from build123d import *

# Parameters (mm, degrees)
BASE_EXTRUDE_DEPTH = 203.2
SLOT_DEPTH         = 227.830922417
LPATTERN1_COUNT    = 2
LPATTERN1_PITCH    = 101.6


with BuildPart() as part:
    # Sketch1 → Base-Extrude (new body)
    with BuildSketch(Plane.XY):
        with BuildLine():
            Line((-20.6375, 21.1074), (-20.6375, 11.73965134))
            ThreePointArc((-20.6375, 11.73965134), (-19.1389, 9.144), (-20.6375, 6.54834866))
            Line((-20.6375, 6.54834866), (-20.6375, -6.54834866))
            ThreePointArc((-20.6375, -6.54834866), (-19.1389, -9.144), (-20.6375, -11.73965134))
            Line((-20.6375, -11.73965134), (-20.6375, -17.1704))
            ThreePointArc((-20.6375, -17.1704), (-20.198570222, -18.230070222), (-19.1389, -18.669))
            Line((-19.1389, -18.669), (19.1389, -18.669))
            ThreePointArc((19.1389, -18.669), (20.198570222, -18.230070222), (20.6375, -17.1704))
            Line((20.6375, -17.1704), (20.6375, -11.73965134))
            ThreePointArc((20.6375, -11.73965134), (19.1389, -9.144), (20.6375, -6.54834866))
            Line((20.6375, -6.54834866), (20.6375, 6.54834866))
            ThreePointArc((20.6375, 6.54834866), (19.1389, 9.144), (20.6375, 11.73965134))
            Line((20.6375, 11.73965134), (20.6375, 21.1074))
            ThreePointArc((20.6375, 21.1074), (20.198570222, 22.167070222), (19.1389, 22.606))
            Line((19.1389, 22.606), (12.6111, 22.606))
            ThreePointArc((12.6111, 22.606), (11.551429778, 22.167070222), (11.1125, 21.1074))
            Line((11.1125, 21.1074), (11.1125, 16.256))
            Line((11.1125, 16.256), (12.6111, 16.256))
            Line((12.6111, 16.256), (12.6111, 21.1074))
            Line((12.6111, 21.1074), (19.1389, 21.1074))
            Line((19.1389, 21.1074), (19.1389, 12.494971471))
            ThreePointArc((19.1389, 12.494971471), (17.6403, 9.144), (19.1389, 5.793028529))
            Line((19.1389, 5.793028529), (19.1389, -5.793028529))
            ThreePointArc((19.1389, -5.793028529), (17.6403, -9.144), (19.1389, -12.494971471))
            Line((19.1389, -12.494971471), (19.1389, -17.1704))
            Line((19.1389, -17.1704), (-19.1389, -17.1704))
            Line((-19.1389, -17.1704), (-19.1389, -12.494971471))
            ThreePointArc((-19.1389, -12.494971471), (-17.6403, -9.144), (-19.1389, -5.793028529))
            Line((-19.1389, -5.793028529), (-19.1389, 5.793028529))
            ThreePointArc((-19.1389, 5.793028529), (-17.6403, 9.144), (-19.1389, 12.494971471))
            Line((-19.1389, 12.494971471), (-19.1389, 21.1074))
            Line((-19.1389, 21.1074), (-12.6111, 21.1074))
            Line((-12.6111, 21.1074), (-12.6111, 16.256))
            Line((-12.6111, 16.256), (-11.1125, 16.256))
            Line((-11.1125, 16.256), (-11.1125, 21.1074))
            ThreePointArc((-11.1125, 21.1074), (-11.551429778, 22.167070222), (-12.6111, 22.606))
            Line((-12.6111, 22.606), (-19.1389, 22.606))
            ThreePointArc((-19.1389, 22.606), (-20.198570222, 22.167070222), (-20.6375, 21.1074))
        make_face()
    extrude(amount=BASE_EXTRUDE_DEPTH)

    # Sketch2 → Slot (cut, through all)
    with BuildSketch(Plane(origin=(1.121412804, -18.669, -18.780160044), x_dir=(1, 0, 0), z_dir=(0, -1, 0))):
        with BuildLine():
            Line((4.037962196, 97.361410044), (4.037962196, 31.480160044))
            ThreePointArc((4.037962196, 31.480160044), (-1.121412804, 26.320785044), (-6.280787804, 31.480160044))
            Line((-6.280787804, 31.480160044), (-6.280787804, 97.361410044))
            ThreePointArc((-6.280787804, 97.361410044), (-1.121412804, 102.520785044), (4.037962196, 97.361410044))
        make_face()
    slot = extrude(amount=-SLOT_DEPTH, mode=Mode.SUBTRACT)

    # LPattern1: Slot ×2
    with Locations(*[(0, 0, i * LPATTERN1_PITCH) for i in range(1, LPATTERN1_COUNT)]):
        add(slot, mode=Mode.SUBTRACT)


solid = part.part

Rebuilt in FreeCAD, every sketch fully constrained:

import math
import FreeCAD as App
import Part
import Sketcher
from FreeCAD import Vector
Q = App.Units.Quantity

doc = App.newDocument("Part")
body = doc.addObject("PartDesign::Body", "Body")

# Sketch on XY plane
sketch1 = doc.addObject("Sketcher::SketchObject", "Sketch")
body.addObject(sketch1)
sketch1.AttachmentSupport = (doc.XY_Plane, [""])
sketch1.MapMode = "FlatFace"
sketch1.addGeometry(Part.LineSegment(Vector(-20.6375, 21.1074, 0), Vector(-20.6375, 11.739651, 0)), False)
sketch1.addGeometry(Part.ArcOfCircle(Part.Circle(Vector(-22.1361, 9.144, 0), Vector(0, 0, 1), 2.9972), math.radians(-60), math.radians(60)), False)
sketch1.addGeometry(Part.LineSegment(Vector(-20.6375, 6.548349, 0), Vector(-20.6375, -6.548349, 0)), False)
sketch1.addGeometry(Part.ArcOfCircle(Part.Circle(Vector(-22.1361, -9.144, 0), Vector(0, 0, 1), 2.9972), math.radians(-60), math.radians(60)), False)
sketch1.addGeometry(Part.LineSegment(Vector(-20.6375, -11.739651, 0), Vector(-20.6375, -17.1704, 0)), False)
sketch1.addGeometry(Part.ArcOfCircle(Part.Circle(Vector(-19.1389, -17.1704, 0), Vector(0, 0, 1), 1.4986), math.radians(-180), math.radians(-90)), False)
sketch1.addGeometry(Part.LineSegment(Vector(-19.1389, -18.669, 0), Vector(19.1389, -18.669, 0)), False)
sketch1.addGeometry(Part.ArcOfCircle(Part.Circle(Vector(19.1389, -17.1704, 0), Vector(0, 0, 1), 1.4986), math.radians(-90), math.radians(0)), False)
sketch1.addGeometry(Part.LineSegment(Vector(20.6375, -17.1704, 0), Vector(20.6375, -11.739651, 0)), False)
sketch1.addGeometry(Part.ArcOfCircle(Part.Circle(Vector(22.1361, -9.144, 0), Vector(0, 0, 1), 2.9972), math.radians(120), math.radians(240)), False)
sketch1.addGeometry(Part.LineSegment(Vector(20.6375, -6.548349, 0), Vector(20.6375, 6.548349, 0)), False)
sketch1.addGeometry(Part.ArcOfCircle(Part.Circle(Vector(22.1361, 9.144, 0), Vector(0, 0, 1), 2.9972), math.radians(120), math.radians(240)), False)
sketch1.addGeometry(Part.LineSegment(Vector(20.6375, 11.739651, 0), Vector(20.6375, 21.1074, 0)), False)
sketch1.addGeometry(Part.ArcOfCircle(Part.Circle(Vector(19.1389, 21.1074, 0), Vector(0, 0, 1), 1.4986), math.radians(0), math.radians(90)), False)
sketch1.addGeometry(Part.LineSegment(Vector(19.1389, 22.606, 0), Vector(12.6111, 22.606, 0)), False)
sketch1.addGeometry(Part.ArcOfCircle(Part.Circle(Vector(12.6111, 21.1074, 0), Vector(0, 0, 1), 1.4986), math.radians(90), math.radians(180)), False)
sketch1.addGeometry(Part.LineSegment(Vector(11.1125, 21.1074, 0), Vector(11.1125, 16.256, 0)), False)
sketch1.addGeometry(Part.LineSegment(Vector(11.1125, 16.256, 0), Vector(12.6111, 16.256, 0)), False)
sketch1.addGeometry(Part.LineSegment(Vector(12.6111, 16.256, 0), Vector(12.6111, 21.1074, 0)), False)
sketch1.addGeometry(Part.LineSegment(Vector(12.6111, 21.1074, 0), Vector(19.1389, 21.1074, 0)), False)
sketch1.addGeometry(Part.LineSegment(Vector(19.1389, 21.1074, 0), Vector(19.1389, 12.494971, 0)), False)
sketch1.addGeometry(Part.ArcOfCircle(Part.Circle(Vector(22.1361, 9.144, 0), Vector(0, 0, 1), 4.4958), math.radians(131.810315), math.radians(228.189685)), False)
sketch1.addGeometry(Part.LineSegment(Vector(19.1389, 5.793029, 0), Vector(19.1389, -5.793029, 0)), False)
sketch1.addGeometry(Part.ArcOfCircle(Part.Circle(Vector(22.1361, -9.144, 0), Vector(0, 0, 1), 4.4958), math.radians(131.810315), math.radians(228.189685)), False)
sketch1.addGeometry(Part.LineSegment(Vector(19.1389, -12.494971, 0), Vector(19.1389, -17.1704, 0)), False)
sketch1.addGeometry(Part.LineSegment(Vector(19.1389, -17.1704, 0), Vector(-19.1389, -17.1704, 0)), False)
sketch1.addGeometry(Part.LineSegment(Vector(-19.1389, -17.1704, 0), Vector(-19.1389, -12.494971, 0)), False)
sketch1.addGeometry(Part.ArcOfCircle(Part.Circle(Vector(-22.1361, -9.144, 0), Vector(0, 0, 1), 4.4958), math.radians(-48.189685), math.radians(48.189685)), False)
sketch1.addGeometry(Part.LineSegment(Vector(-19.1389, -5.793029, 0), Vector(-19.1389, 5.793029, 0)), False)
sketch1.addGeometry(Part.ArcOfCircle(Part.Circle(Vector(-22.1361, 9.144, 0), Vector(0, 0, 1), 4.4958), math.radians(-48.189685), math.radians(48.189685)), False)
sketch1.addGeometry(Part.LineSegment(Vector(-19.1389, 12.494971, 0), Vector(-19.1389, 21.1074, 0)), False)
sketch1.addGeometry(Part.LineSegment(Vector(-19.1389, 21.1074, 0), Vector(-12.6111, 21.1074, 0)), False)
sketch1.addGeometry(Part.LineSegment(Vector(-12.6111, 21.1074, 0), Vector(-12.6111, 16.256, 0)), False)
sketch1.addGeometry(Part.LineSegment(Vector(-12.6111, 16.256, 0), Vector(-11.1125, 16.256, 0)), False)
sketch1.addGeometry(Part.LineSegment(Vector(-11.1125, 16.256, 0), Vector(-11.1125, 21.1074, 0)), False)
sketch1.addGeometry(Part.ArcOfCircle(Part.Circle(Vector(-12.6111, 21.1074, 0), Vector(0, 0, 1), 1.4986), math.radians(0), math.radians(90)), False)
sketch1.addGeometry(Part.LineSegment(Vector(-12.6111, 22.606, 0), Vector(-19.1389, 22.606, 0)), False)
sketch1.addGeometry(Part.ArcOfCircle(Part.Circle(Vector(-19.1389, 21.1074, 0), Vector(0, 0, 1), 1.4986), math.radians(90), math.radians(180)), False)
sketch1.addConstraint(Sketcher.Constraint("Coincident", 0, 2, 1, 2))
sketch1.addConstraint(Sketcher.Constraint("Coincident", 1, 1, 2, 1))
sketch1.addConstraint(Sketcher.Constraint("Coincident", 2, 2, 3, 2))
sketch1.addConstraint(Sketcher.Constraint("Coincident", 3, 1, 4, 1))
sketch1.addConstraint(Sketcher.Constraint("Tangent", 4, 2, 5, 1))
sketch1.addConstraint(Sketcher.Constraint("Tangent", 5, 2, 6, 1))
sketch1.addConstraint(Sketcher.Constraint("Tangent", 6, 2, 7, 1))
sketch1.addConstraint(Sketcher.Constraint("Tangent", 7, 2, 8, 1))
sketch1.addConstraint(Sketcher.Constraint("Coincident", 8, 2, 9, 2))
sketch1.addConstraint(Sketcher.Constraint("Coincident", 9, 1, 10, 1))
sketch1.addConstraint(Sketcher.Constraint("Coincident", 10, 2, 11, 2))
sketch1.addConstraint(Sketcher.Constraint("Coincident", 11, 1, 12, 1))
sketch1.addConstraint(Sketcher.Constraint("Tangent", 12, 2, 13, 1))
sketch1.addConstraint(Sketcher.Constraint("Tangent", 13, 2, 14, 1))
sketch1.addConstraint(Sketcher.Constraint("Tangent", 14, 2, 15, 1))
sketch1.addConstraint(Sketcher.Constraint("Tangent", 15, 2, 16, 1))
sketch1.addConstraint(Sketcher.Constraint("Coincident", 16, 2, 17, 1))
sketch1.addConstraint(Sketcher.Constraint("Coincident", 17, 2, 18, 1))
sketch1.addConstraint(Sketcher.Constraint("Coincident", 18, 2, 19, 1))
sketch1.addConstraint(Sketcher.Constraint("Coincident", 19, 2, 20, 1))
sketch1.addConstraint(Sketcher.Constraint("Coincident", 20, 2, 21, 1))
sketch1.addConstraint(Sketcher.Constraint("Coincident", 21, 2, 22, 1))
sketch1.addConstraint(Sketcher.Constraint("Coincident", 22, 2, 23, 1))
sketch1.addConstraint(Sketcher.Constraint("Coincident", 23, 2, 24, 1))
sketch1.addConstraint(Sketcher.Constraint("Coincident", 24, 2, 25, 1))
sketch1.addConstraint(Sketcher.Constraint("Coincident", 25, 2, 26, 1))
sketch1.addConstraint(Sketcher.Constraint("Coincident", 26, 2, 27, 1))
sketch1.addConstraint(Sketcher.Constraint("Coincident", 27, 2, 28, 1))
sketch1.addConstraint(Sketcher.Constraint("Coincident", 28, 2, 29, 1))
sketch1.addConstraint(Sketcher.Constraint("Coincident", 29, 2, 30, 1))
sketch1.addConstraint(Sketcher.Constraint("Coincident", 30, 2, 31, 1))
sketch1.addConstraint(Sketcher.Constraint("Coincident", 31, 2, 32, 1))
sketch1.addConstraint(Sketcher.Constraint("Coincident", 32, 2, 33, 1))
sketch1.addConstraint(Sketcher.Constraint("Coincident", 33, 2, 34, 1))
sketch1.addConstraint(Sketcher.Constraint("Tangent", 34, 2, 35, 1))
sketch1.addConstraint(Sketcher.Constraint("Tangent", 35, 2, 36, 1))
sketch1.addConstraint(Sketcher.Constraint("Tangent", 36, 2, 37, 1))
sketch1.addConstraint(Sketcher.Constraint("Tangent", 37, 2, 0, 1))
sketch1.addConstraint(Sketcher.Constraint("Vertical", 0))
sketch1.addConstraint(Sketcher.Constraint("Vertical", 2))
sketch1.addConstraint(Sketcher.Constraint("Vertical", 4))
sketch1.addConstraint(Sketcher.Constraint("Horizontal", 6))
sketch1.addConstraint(Sketcher.Constraint("Vertical", 8))
sketch1.addConstraint(Sketcher.Constraint("Vertical", 10))
sketch1.addConstraint(Sketcher.Constraint("Vertical", 12))
sketch1.addConstraint(Sketcher.Constraint("Horizontal", 14))
sketch1.addConstraint(Sketcher.Constraint("Vertical", 16))
sketch1.addConstraint(Sketcher.Constraint("Horizontal", 17))
sketch1.addConstraint(Sketcher.Constraint("Vertical", 18))
sketch1.addConstraint(Sketcher.Constraint("Horizontal", 19))
sketch1.addConstraint(Sketcher.Constraint("Vertical", 20))
sketch1.addConstraint(Sketcher.Constraint("Vertical", 22))
sketch1.addConstraint(Sketcher.Constraint("Vertical", 24))
sketch1.addConstraint(Sketcher.Constraint("Horizontal", 25))
sketch1.addConstraint(Sketcher.Constraint("Vertical", 26))
sketch1.addConstraint(Sketcher.Constraint("Vertical", 28))
sketch1.addConstraint(Sketcher.Constraint("Vertical", 30))
sketch1.addConstraint(Sketcher.Constraint("Horizontal", 31))
sketch1.addConstraint(Sketcher.Constraint("Vertical", 32))
sketch1.addConstraint(Sketcher.Constraint("Horizontal", 33))
sketch1.addConstraint(Sketcher.Constraint("Vertical", 34))
sketch1.addConstraint(Sketcher.Constraint("Horizontal", 36))
sketch1.addConstraint(Sketcher.Constraint("Coincident", 21, 3, 11, 3))
sketch1.addConstraint(Sketcher.Constraint("Coincident", 23, 3, 9, 3))
sketch1.addConstraint(Sketcher.Constraint("Coincident", 27, 3, 3, 3))
sketch1.addConstraint(Sketcher.Constraint("Coincident", 29, 3, 1, 3))
sketch1.addConstraint(Sketcher.Constraint("Coincident", 18, 2, 15, 3))
sketch1.addConstraint(Sketcher.Constraint("Coincident", 19, 2, 13, 3))
sketch1.addConstraint(Sketcher.Constraint("Coincident", 24, 2, 7, 3))
sketch1.addConstraint(Sketcher.Constraint("Coincident", 25, 2, 5, 3))
sketch1.addConstraint(Sketcher.Constraint("Coincident", 30, 2, 37, 3))
sketch1.addConstraint(Sketcher.Constraint("Coincident", 31, 2, 35, 3))
sketch1.addConstraint(Sketcher.Constraint("Equal", 1, 3))
sketch1.addConstraint(Sketcher.Constraint("Equal", 3, 9))
sketch1.addConstraint(Sketcher.Constraint("Equal", 9, 11))
sketch1.addConstraint(Sketcher.Constraint("Equal", 7, 13))
sketch1.addConstraint(Sketcher.Constraint("Equal", 21, 23))
sketch1.addConstraint(Sketcher.Constraint("Equal", 23, 27))
sketch1.addConstraint(Sketcher.Constraint("Equal", 27, 29))
sketch1.addConstraint(Sketcher.Constraint("Equal", 15, 35))
sketch1.addConstraint(Sketcher.Constraint("Symmetric", 1, 3, 9, 3, -1, 1))
sketch1.addConstraint(Sketcher.Constraint("Symmetric", 3, 3, 11, 3, -1, 1))
sketch1.addConstraint(Sketcher.Constraint("Symmetric", 3, 3, 9, 3, -2))
sketch1.addConstraint(Sketcher.Constraint("Symmetric", 15, 3, 35, 3, -2))
sketch1.addConstraint(Sketcher.Constraint("Horizontal", 3, 1, 8, 2))
sketch1.addConstraint(Sketcher.Constraint("Horizontal", 2, 2, 9, 1))
sketch1.addConstraint(Sketcher.Constraint("Horizontal", 0, 2, 11, 1))
sketch1.addConstraint(Sketcher.Constraint("Horizontal", 22, 2, 27, 2))
sketch1.addConstraint(Sketcher.Constraint("Horizontal", 17, 2, 32, 2))
sketch1.addConstraint(Sketcher.Constraint("Vertical", 7, 3, 13, 3))
sketch1.addConstraint(Sketcher.Constraint("Vertical", 0, 2, 1, 1))
sketch1.addConstraint(Sketcher.Constraint("Vertical", 20, 2, 21, 2))
sketch1.addConstraint(Sketcher.Constraint("Radius", 1, Q("0.118 in")))
sketch1.addConstraint(Sketcher.Constraint("Radius", 5, Q("0.059 in")))
sketch1.addConstraint(Sketcher.Constraint("Radius", 21, Q("0.177 in")))
sketch1.addConstraint(Sketcher.Constraint("DistanceX", 6, 1, 6, 2, Q("1.507 in")))
sketch1.addConstraint(Sketcher.Constraint("DistanceX", 14, 2, 14, 1, Q("0.257 in")))
sketch1.addConstraint(Sketcher.Constraint("DistanceY", 16, 2, 16, 1, Q("0.191 in")))
sketch1.addConstraint(Sketcher.Constraint("DistanceY", -1, 1, 1, 3, Q("0.36 in")))
sketch1.addConstraint(Sketcher.Constraint("DistanceY", -1, 1, 13, 2, Q("0.89 in")))
sketch1.addConstraint(Sketcher.Constraint("DistanceY", 5, 3, -1, 1, Q("0.676 in")))
sketch1.addConstraint(Sketcher.Constraint("DistanceX", 3, 3, 5, 3, Q("0.118 in")))
pad1 = doc.addObject("PartDesign::Pad", "Pad")
body.addObject(pad1)
pad1.Profile = sketch1
pad1.Length = Q("8 in")

# Sketch on XZ plane
sketch2 = doc.addObject("Sketcher::SketchObject", "Sketch001")
body.addObject(sketch2)
sketch2.AttachmentSupport = (doc.XZ_Plane, [""])
sketch2.MapMode = "FlatFace"
sketch2.AttachmentOffset = App.Placement(Vector(0, 0, 0.735 * 25.4), App.Rotation())
sketch2.addGeometry(Part.LineSegment(Vector(5.159375, 12.7, 0), Vector(5.159375, 78.58125, 0)), False)
sketch2.addGeometry(Part.ArcOfCircle(Part.Circle(Vector(0, 78.58125, 0), Vector(0, 0, 1), 5.159375), math.radians(0), math.radians(180)), False)
sketch2.addGeometry(Part.LineSegment(Vector(-5.159375, 78.58125, 0), Vector(-5.159375, 12.7, 0)), False)
sketch2.addGeometry(Part.ArcOfCircle(Part.Circle(Vector(0, 12.7, 0), Vector(0, 0, 1), 5.159375), math.radians(180), math.radians(360)), False)
sketch2.addConstraint(Sketcher.Constraint("Tangent", 0, 2, 1, 1))
sketch2.addConstraint(Sketcher.Constraint("Tangent", 1, 2, 2, 1))
sketch2.addConstraint(Sketcher.Constraint("Tangent", 2, 2, 3, 1))
sketch2.addConstraint(Sketcher.Constraint("Tangent", 3, 2, 0, 1))
sketch2.addConstraint(Sketcher.Constraint("Vertical", 0))
sketch2.addConstraint(Sketcher.Constraint("Vertical", 2))
sketch2.addConstraint(Sketcher.Constraint("PointOnObject", 1, 3, -2))
sketch2.addConstraint(Sketcher.Constraint("Radius", 1, Q("0.203125 in")))
sketch2.addConstraint(Sketcher.Constraint("DistanceY", -1, 1, 3, 3, Q("0.5 in")))
sketch2.addConstraint(Sketcher.Constraint("DistanceY", 0, 1, 0, 2, Q("2.59375 in")))
pocket1 = doc.addObject("PartDesign::Pocket", "Pocket")
body.addObject(pocket1)
pocket1.Profile = sketch2
pocket1.Type = "ThroughAll"
doc.recompute()

linearpattern = doc.addObject("PartDesign::LinearPattern", "LinearPattern")
body.addObject(linearpattern)
linearpattern.Originals = [pocket1]
linearpattern.Direction = (doc.Z_Axis, [""])
linearpattern.Mode = "offset"
linearpattern.Offset = Q("4 in")
linearpattern.Occurrences = 2
body.Tip = linearpattern

doc.recompute()
